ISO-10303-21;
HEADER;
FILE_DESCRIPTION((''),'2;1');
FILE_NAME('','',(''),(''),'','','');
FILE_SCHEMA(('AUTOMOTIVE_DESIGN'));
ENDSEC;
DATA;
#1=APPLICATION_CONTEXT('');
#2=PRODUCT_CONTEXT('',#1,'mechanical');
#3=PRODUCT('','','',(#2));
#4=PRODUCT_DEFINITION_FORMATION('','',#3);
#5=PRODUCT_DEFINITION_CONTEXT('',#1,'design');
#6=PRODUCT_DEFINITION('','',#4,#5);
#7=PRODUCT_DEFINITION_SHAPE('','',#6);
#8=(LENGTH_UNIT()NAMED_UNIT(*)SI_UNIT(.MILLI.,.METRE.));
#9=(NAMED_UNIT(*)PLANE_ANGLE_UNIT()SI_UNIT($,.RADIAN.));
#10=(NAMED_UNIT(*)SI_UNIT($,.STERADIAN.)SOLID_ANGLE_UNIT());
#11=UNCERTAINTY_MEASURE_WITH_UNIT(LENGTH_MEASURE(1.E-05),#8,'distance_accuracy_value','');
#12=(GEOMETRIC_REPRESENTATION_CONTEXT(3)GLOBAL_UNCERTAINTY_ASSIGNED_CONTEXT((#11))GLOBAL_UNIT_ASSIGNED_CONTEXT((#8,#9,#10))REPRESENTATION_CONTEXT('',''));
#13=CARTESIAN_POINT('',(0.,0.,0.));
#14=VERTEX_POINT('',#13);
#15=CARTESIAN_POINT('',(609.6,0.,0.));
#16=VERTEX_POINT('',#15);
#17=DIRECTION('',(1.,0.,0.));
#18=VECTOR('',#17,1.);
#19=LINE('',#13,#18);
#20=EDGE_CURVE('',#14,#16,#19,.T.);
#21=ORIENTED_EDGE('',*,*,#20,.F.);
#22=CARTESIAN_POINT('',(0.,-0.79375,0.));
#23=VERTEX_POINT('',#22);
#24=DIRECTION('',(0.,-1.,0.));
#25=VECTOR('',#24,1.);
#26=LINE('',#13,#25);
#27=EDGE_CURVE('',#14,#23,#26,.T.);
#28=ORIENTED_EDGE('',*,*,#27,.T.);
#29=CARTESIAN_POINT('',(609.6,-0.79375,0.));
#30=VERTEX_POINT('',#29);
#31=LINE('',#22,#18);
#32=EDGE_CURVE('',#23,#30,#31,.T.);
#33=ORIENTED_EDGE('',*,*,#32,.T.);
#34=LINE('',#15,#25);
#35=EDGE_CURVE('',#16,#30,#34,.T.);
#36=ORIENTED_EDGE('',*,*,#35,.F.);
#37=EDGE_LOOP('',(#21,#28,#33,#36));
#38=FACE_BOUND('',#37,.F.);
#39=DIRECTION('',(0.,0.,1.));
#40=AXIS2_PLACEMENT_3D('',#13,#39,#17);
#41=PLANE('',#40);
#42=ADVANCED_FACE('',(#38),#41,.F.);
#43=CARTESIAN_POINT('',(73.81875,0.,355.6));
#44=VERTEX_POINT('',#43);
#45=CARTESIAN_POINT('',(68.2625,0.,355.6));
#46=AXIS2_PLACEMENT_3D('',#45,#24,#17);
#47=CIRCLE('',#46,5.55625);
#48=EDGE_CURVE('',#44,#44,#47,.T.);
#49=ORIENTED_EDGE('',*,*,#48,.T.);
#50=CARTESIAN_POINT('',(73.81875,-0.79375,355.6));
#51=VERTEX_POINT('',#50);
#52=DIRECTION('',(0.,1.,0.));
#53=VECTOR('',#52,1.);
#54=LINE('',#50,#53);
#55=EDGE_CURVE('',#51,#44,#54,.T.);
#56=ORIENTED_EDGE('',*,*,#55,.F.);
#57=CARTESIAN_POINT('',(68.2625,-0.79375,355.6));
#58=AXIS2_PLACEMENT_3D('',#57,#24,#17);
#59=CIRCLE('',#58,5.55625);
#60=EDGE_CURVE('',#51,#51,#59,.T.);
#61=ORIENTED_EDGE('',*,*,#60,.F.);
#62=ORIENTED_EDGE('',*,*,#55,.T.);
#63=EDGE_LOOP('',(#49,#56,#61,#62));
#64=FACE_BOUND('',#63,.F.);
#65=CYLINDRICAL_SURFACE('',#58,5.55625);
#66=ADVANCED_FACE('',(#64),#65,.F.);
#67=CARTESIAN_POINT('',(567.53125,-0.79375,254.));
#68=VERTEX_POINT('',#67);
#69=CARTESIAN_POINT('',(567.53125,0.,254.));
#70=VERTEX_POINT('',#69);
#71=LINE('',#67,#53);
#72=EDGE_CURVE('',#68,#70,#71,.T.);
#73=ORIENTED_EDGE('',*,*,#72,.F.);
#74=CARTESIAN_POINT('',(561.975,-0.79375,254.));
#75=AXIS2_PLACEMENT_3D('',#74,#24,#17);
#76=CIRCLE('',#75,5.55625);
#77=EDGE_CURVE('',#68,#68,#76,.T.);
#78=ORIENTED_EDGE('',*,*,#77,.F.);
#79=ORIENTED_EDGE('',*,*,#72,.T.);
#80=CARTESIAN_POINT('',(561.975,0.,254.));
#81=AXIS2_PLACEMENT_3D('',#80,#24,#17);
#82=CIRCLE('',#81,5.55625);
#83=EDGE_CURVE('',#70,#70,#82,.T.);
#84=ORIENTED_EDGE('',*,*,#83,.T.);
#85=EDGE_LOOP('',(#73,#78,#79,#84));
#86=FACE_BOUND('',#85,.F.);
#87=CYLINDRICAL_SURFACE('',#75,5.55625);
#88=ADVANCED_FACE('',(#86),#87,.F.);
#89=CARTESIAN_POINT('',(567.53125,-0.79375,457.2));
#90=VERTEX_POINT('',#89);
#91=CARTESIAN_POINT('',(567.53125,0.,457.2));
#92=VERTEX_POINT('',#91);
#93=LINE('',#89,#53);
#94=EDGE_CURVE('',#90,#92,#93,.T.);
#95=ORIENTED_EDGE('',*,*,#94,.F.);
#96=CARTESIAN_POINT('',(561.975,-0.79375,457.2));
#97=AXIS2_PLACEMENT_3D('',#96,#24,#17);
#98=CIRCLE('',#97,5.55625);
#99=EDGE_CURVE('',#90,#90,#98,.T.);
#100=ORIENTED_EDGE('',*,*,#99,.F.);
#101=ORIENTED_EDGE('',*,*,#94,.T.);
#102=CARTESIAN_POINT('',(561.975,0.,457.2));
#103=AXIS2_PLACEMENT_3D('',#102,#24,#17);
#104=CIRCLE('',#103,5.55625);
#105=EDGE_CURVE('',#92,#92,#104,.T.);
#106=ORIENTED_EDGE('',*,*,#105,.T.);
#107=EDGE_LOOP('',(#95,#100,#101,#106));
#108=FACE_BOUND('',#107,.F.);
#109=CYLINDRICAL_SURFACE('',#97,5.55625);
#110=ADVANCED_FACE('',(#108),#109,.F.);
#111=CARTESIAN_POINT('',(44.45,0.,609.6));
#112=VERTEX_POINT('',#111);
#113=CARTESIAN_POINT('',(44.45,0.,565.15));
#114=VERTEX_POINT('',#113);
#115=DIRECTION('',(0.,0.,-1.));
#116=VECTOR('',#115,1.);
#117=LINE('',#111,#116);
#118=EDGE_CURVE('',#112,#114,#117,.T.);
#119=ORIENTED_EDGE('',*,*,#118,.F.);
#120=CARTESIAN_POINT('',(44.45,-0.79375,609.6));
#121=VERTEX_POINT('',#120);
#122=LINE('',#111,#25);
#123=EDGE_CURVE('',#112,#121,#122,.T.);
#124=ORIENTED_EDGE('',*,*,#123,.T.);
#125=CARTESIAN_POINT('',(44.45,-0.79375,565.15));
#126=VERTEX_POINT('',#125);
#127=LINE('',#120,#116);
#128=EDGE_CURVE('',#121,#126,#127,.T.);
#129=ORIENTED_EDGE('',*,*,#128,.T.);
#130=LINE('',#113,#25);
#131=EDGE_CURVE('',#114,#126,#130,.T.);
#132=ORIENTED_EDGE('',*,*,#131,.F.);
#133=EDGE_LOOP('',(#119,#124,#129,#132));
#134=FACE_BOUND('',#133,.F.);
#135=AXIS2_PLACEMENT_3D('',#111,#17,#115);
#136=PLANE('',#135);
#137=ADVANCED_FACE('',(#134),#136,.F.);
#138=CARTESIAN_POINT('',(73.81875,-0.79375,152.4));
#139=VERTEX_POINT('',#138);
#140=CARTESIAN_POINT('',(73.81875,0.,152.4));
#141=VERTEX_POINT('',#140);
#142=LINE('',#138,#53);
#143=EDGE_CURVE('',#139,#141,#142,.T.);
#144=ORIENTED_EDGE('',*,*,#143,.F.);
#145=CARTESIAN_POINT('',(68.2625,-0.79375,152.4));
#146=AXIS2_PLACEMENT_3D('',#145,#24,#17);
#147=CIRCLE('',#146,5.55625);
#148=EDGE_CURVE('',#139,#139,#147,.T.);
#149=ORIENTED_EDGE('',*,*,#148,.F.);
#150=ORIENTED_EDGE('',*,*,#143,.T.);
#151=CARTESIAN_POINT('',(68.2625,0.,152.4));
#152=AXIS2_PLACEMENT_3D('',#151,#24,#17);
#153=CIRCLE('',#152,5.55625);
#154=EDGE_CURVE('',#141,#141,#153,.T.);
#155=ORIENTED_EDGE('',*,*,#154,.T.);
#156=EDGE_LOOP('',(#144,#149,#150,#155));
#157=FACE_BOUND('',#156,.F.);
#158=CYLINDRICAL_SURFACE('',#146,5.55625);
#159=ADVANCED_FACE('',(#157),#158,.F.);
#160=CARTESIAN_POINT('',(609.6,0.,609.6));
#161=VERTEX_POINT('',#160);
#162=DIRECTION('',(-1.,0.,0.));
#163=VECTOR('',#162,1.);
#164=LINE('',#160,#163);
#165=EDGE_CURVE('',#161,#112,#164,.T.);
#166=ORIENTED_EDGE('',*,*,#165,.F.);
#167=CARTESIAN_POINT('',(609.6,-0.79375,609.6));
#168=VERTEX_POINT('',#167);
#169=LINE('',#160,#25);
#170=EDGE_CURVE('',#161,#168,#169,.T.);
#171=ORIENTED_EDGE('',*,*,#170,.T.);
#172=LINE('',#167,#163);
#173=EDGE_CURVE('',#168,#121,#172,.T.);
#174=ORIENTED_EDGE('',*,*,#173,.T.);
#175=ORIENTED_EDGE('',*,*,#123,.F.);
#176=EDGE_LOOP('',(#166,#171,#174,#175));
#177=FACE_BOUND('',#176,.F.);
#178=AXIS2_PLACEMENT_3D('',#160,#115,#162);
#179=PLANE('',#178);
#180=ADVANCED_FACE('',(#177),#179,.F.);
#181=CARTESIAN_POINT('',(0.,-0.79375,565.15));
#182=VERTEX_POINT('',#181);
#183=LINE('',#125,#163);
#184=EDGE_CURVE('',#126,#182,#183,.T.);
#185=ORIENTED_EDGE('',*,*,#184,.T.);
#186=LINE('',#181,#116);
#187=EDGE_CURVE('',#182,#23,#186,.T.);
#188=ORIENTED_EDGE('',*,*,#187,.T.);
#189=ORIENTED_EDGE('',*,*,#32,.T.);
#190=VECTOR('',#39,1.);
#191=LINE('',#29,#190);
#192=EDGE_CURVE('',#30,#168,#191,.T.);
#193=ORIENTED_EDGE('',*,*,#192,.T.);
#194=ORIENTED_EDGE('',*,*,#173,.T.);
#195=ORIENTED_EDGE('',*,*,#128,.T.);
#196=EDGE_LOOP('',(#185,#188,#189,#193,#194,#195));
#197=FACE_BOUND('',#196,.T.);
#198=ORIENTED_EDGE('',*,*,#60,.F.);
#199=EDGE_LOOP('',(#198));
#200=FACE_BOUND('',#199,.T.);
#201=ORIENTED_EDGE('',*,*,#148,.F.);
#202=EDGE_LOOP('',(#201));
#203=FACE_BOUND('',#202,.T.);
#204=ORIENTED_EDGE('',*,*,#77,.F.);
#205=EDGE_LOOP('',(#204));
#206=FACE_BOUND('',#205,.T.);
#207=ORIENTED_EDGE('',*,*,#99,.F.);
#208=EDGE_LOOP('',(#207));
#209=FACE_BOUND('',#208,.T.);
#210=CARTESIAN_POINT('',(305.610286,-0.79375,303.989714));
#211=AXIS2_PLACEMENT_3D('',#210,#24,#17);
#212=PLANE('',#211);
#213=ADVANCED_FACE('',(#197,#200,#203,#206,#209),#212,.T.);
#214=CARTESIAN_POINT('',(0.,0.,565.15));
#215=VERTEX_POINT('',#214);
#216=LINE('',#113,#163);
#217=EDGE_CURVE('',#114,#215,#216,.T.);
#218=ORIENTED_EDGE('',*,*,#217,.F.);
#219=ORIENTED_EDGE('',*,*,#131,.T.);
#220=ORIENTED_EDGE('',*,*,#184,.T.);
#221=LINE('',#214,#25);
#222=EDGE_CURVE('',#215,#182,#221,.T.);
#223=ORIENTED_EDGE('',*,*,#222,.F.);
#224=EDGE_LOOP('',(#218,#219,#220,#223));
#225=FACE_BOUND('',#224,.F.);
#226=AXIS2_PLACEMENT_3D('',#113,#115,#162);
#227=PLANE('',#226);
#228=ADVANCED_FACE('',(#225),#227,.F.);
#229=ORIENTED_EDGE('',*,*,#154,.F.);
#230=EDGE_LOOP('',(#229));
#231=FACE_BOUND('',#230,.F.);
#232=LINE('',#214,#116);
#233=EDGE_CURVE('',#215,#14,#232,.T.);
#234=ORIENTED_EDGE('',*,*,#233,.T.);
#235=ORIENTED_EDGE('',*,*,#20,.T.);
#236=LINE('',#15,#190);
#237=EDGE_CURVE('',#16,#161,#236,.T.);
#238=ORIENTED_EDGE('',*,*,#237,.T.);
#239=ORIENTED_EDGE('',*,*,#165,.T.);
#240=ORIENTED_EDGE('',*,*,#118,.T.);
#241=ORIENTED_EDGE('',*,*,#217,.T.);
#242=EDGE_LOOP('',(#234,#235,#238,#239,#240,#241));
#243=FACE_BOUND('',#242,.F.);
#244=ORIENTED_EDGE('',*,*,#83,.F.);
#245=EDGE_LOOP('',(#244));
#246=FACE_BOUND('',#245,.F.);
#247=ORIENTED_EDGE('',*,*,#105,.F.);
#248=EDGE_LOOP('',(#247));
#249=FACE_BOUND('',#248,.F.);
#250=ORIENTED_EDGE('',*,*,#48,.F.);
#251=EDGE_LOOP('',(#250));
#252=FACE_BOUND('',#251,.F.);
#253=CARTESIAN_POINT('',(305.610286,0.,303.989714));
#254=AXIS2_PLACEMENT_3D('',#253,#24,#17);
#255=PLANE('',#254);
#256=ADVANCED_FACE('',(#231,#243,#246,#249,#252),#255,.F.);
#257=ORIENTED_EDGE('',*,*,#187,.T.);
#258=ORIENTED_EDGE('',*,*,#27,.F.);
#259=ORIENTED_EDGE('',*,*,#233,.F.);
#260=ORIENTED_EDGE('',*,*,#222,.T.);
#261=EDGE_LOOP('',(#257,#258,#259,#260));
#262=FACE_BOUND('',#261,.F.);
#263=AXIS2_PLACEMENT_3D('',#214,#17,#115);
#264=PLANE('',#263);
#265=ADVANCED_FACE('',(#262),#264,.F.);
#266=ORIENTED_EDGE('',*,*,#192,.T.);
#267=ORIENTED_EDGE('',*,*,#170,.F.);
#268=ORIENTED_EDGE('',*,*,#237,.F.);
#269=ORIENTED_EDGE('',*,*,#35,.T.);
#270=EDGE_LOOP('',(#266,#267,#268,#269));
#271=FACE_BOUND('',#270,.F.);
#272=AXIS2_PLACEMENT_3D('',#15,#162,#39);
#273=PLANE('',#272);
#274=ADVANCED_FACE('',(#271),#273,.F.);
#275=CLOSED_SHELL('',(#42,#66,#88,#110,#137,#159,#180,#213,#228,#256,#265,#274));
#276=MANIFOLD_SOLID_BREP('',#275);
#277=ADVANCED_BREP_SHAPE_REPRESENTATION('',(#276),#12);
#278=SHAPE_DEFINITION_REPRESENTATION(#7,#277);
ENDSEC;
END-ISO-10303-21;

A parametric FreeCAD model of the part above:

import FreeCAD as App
import Part
import Sketcher
from FreeCAD import Vector
Q = App.Units.Quantity


def add_polygon(sketch, points):
    """Adds a closed chain of lines whose ends are joined by coincident constraints."""
    first, n = sketch.GeometryCount, len(points)
    for a, b in zip(points, points[1:] + points[:1]):
        sketch.addGeometry(Part.LineSegment(App.Vector(*a, 0), App.Vector(*b, 0)), False)
    for i in range(n):
        sketch.addConstraint(Sketcher.Constraint("Coincident", first + i, 2, first + (i + 1) % n, 1))

doc = App.newDocument("Part")
params = doc.addObject("Spreadsheet::Sheet", "Params")
for row, (alias, value) in enumerate([
    ("sketch1_width", "24 in"),
    ("sketch1_width2", "22.25 in"),
    ("pad1_length", "0.03125 in"),
    ("sketch2_diameter", "0.4375 in"),
    ("pocket1_length", "1 in"),
], start=1):
    params.set(f"A{row}", alias)
    params.set(f"B{row}", "=" + value)
    params.setAlias(f"B{row}", alias)

body = doc.addObject("PartDesign::Body", "Body")

sketch1 = body.newObject("Sketcher::SketchObject", "Sketch")
sketch1.AttachmentSupport = (doc.getObject("XZ_Plane"), [""])
sketch1.MapMode = "FlatFace"
add_polygon(sketch1, [(0, 565), (0, 0), (610, 0), (610, 610), (44, 610), (44, 565)])
sketch1.addConstraint(Sketcher.Constraint("Vertical", 0))
sketch1.addConstraint(Sketcher.Constraint("Horizontal", 1))
sketch1.addConstraint(Sketcher.Constraint("Vertical", 2))
sketch1.addConstraint(Sketcher.Constraint("Horizontal", 3))
sketch1.addConstraint(Sketcher.Constraint("Vertical", 4))
sketch1.addConstraint(Sketcher.Constraint("Horizontal", 5))
sketch1.addConstraint(Sketcher.Constraint("Coincident", 0, 2, -1, 1))
sketch1.addConstraint(Sketcher.Constraint("Equal", 3, 0))
sketch1.addConstraint(Sketcher.Constraint("Equal", 1, 2))
sketch1.addConstraint(Sketcher.Constraint("DistanceX", 1, 1, 1, 2, Q("24 in")))
sketch1.addConstraint(Sketcher.Constraint("DistanceX", 3, 2, 3, 1, Q("22.25 in")))
sketch1.setExpression("Constraints[15]", "Params.sketch1_width")
sketch1.setExpression("Constraints[16]", "Params.sketch1_width2")
pad1 = body.newObject("PartDesign::Pad", "Pad")
pad1.Profile = sketch1
pad1.setExpression("Length", "Params.pad1_length")

sketch2 = body.newObject("Sketcher::SketchObject", "Sketch001")
sketch2.AttachmentSupport = (doc.getObject("XZ_Plane"), [""])
sketch2.MapMode = "FlatFace"
sketch2.AttachmentOffset = App.Placement(Vector(0, 0, 0.03125 * 25.4), App.Rotation())
sketch2.addGeometry(Part.Circle(Vector(562, 254, 0), Vector(0, 0, 1), 6), False)
sketch2.addGeometry(Part.Circle(Vector(562, 457, 0), Vector(0, 0, 1), 6), False)
sketch2.addGeometry(Part.Circle(Vector(68, 152, 0), Vector(0, 0, 1), 6), False)
sketch2.addGeometry(Part.Circle(Vector(68, 356, 0), Vector(0, 0, 1), 6), False)
sketch2.addConstraint(Sketcher.Constraint("Equal", 0, 1))
sketch2.addConstraint(Sketcher.Constraint("Equal", 1, 2))
sketch2.addConstraint(Sketcher.Constraint("Equal", 2, 3))
sketch2.addConstraint(Sketcher.Constraint("Vertical", 0, 3, 1, 3))
sketch2.addConstraint(Sketcher.Constraint("Vertical", 2, 3, 3, 3))
sketch2.addConstraint(Sketcher.Constraint("Diameter", 0, Q("0.4375 in")))
sketch2.addConstraint(Sketcher.Constraint("DistanceY", -1, 1, 0, 3, Q("10 in")))
sketch2.addConstraint(Sketcher.Constraint("DistanceY", -1, 1, 1, 3, Q("18 in")))
sketch2.addConstraint(Sketcher.Constraint("DistanceY", -1, 1, 2, 3, Q("6 in")))
sketch2.addConstraint(Sketcher.Constraint("DistanceY", -1, 1, 3, 3, Q("14 in")))
sketch2.addConstraint(Sketcher.Constraint("DistanceX", -1, 1, 0, 3, Q("22.125 in")))
sketch2.addConstraint(Sketcher.Constraint("DistanceX", -1, 1, 2, 3, Q("2.6875 in")))
sketch2.setExpression("Constraints[5]", "Params.sketch2_diameter")
pocket1 = body.newObject("PartDesign::Pocket", "Pocket")
pocket1.Profile = sketch2
pocket1.setExpression("Length", "Params.pocket1_length")

doc.recompute()
